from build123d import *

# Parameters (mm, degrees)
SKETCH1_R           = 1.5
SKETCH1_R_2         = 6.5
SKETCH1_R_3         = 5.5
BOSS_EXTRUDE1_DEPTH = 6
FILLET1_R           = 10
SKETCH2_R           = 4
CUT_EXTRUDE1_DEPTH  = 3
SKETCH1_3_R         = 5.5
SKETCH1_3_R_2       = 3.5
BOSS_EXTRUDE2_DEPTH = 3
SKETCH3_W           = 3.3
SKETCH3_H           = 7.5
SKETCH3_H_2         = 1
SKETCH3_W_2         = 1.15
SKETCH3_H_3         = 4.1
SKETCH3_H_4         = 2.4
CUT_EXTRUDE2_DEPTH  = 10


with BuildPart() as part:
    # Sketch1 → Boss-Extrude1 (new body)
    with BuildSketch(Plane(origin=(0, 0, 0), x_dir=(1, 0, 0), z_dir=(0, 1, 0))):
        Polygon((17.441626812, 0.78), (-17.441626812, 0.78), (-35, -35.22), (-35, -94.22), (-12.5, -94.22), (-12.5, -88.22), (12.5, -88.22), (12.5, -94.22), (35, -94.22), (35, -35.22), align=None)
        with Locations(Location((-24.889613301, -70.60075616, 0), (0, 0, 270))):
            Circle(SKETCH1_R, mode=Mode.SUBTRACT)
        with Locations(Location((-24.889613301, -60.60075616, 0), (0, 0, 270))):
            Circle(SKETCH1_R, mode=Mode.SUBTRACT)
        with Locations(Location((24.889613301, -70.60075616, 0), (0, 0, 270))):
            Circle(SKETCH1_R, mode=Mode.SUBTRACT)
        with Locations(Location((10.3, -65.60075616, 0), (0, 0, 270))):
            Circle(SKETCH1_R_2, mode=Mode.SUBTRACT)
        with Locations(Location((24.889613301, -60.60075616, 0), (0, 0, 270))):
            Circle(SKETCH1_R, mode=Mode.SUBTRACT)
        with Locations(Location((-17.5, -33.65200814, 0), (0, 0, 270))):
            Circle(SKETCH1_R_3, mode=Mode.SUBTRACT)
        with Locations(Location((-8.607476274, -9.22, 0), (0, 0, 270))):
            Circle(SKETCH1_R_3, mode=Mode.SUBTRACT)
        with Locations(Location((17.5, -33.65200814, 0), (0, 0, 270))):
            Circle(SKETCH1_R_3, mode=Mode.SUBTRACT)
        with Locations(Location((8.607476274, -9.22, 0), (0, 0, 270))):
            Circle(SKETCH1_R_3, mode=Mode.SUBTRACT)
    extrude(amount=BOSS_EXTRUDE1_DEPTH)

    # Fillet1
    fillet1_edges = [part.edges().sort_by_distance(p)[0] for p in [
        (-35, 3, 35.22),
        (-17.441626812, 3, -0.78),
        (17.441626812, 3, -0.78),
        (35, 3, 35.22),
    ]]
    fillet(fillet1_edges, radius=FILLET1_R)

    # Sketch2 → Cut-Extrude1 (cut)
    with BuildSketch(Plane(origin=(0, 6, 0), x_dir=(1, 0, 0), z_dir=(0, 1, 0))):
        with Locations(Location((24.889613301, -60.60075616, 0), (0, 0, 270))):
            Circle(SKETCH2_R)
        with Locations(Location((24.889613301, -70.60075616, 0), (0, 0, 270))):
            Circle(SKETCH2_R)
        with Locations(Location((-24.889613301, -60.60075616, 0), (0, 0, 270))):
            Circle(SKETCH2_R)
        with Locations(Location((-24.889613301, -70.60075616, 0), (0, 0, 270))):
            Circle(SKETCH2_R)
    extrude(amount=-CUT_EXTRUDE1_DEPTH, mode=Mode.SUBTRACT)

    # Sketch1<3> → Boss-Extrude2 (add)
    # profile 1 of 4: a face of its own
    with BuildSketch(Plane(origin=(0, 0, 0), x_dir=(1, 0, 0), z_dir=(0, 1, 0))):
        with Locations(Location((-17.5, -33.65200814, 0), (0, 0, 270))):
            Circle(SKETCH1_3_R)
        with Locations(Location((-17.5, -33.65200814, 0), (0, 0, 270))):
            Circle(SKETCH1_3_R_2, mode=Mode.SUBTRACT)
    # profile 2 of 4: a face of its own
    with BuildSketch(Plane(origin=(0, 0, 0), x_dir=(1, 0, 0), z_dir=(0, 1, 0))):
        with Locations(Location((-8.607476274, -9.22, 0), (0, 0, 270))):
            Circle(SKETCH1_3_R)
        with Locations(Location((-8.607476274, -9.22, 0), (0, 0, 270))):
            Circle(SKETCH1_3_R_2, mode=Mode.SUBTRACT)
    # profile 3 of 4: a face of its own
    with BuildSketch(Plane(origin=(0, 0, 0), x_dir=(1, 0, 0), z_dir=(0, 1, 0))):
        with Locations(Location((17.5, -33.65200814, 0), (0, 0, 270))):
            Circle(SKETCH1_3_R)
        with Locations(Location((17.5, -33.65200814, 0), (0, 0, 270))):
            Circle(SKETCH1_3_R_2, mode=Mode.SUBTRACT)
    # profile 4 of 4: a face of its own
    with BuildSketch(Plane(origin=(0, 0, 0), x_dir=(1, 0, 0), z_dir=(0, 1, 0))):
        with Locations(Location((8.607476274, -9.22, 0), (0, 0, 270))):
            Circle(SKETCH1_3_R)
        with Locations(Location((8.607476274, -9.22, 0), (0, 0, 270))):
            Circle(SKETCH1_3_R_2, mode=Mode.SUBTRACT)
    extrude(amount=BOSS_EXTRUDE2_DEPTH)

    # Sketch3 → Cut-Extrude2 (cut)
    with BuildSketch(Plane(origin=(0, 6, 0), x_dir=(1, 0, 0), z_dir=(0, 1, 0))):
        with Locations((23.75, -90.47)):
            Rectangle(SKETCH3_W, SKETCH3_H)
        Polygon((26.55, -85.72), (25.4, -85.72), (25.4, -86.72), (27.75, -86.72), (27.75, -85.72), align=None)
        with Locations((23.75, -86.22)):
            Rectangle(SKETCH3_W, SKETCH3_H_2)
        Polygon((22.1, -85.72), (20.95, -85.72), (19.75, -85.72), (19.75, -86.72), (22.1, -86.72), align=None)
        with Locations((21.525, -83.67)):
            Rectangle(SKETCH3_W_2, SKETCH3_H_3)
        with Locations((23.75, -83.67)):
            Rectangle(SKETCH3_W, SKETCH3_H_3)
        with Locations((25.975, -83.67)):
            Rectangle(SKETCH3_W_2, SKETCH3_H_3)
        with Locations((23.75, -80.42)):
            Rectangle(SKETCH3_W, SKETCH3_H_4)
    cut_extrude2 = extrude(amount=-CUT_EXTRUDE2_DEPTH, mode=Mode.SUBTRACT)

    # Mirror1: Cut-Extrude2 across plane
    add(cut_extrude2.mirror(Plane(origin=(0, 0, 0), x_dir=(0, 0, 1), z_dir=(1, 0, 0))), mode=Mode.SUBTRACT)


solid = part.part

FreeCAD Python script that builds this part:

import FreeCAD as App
import Part
import Sketcher
Q = App.Units.Quantity


def edges_at(feature, points):
    """Names of the edges that pass closest to the given points."""
    edges = feature.Shape.Edges
    near = lambda p: min(range(len(edges)), key=lambda i: edges[i].distToShape(Part.Vertex(*p))[0])
    return sorted({f"Edge{near(p) + 1}" for p in points})


def add_polygon(sketch, points):
    """Adds a closed chain of lines whose ends are joined by coincident constraints."""
    first, n = sketch.GeometryCount, len(points)
    for a, b in zip(points, points[1:] + points[:1]):
        sketch.addGeometry(Part.LineSegment(App.Vector(*a, 0), App.Vector(*b, 0)), False)
    for i in range(n):
        sketch.addConstraint(Sketcher.Constraint("Coincident", first + i, 2, first + (i + 1) % n, 1))

doc = App.newDocument("Part")
body = doc.addObject("PartDesign::Body", "Body")

# Sketch on XZ plane
sketch1 = body.newObject("Sketcher::SketchObject", "Sketch")
sketch1.AttachmentSupport = (doc.getObject("XZ_Plane"), [""])
sketch1.MapMode = "FlatFace"
add_polygon(sketch1, [(17.4, -0.8), (-17.4, -0.8), (-35, 35.2), (-35, 94.2), (-12.5, 94.2), (-12.5, 88.2), (12.5, 88.2), (12.5, 94.2), (35, 94.2), (35, 35.2)])  # lines 0-9
sketch1.addGeometry(Part.Circle(App.Vector(-24.9, 70.6, 0), App.Vector(0, 0, 1), 1.5), False)  # 10
sketch1.addGeometry(Part.Circle(App.Vector(-24.9, 60.6, 0), App.Vector(0, 0, 1), 1.5), False)  # 11
sketch1.addGeometry(Part.Circle(App.Vector(10.3, 65.6, 0), App.Vector(0, 0, 1), 6.5), False)  # 12
sketch1.addGeometry(Part.Circle(App.Vector(24.9, 70.6, 0), App.Vector(0, 0, 1), 1.5), False)  # 13
sketch1.addGeometry(Part.Circle(App.Vector(24.9, 60.6, 0), App.Vector(0, 0, 1), 1.5), False)  # 14
sketch1.addGeometry(Part.Circle(App.Vector(-17.5, 33.7, 0), App.Vector(0, 0, 1), 5.5), False)  # 15
sketch1.addGeometry(Part.Circle(App.Vector(-8.6, 9.2, 0), App.Vector(0, 0, 1), 5.5), False)  # 16
sketch1.addGeometry(Part.Circle(App.Vector(17.5, 33.7, 0), App.Vector(0, 0, 1), 5.5), False)  # 17
sketch1.addGeometry(Part.Circle(App.Vector(8.6, 9.2, 0), App.Vector(0, 0, 1), 5.5), False)  # 18
sketch1.addConstraint([
    Sketcher.Constraint("Horizontal", 0),
    Sketcher.Constraint("Vertical", 2),
    Sketcher.Constraint("Horizontal", 3),
    Sketcher.Constraint("Vertical", 4),
    Sketcher.Constraint("Horizontal", 5),
    Sketcher.Constraint("Vertical", 6),
    Sketcher.Constraint("Horizontal", 7),
    Sketcher.Constraint("Vertical", 8),
    Sketcher.Constraint("Equal", 10, 11),
    Sketcher.Constraint("Equal", 11, 13),
    Sketcher.Constraint("Equal", 13, 14),
    Sketcher.Constraint("Equal", 15, 16),
    Sketcher.Constraint("Equal", 16, 17),
    Sketcher.Constraint("Equal", 17, 18),
    Sketcher.Constraint("Symmetric", 10, 3, 13, 3, -2),
    Sketcher.Constraint("Symmetric", 11, 3, 14, 3, -2),
    Sketcher.Constraint("Symmetric", 15, 3, 17, 3, -2),
    Sketcher.Constraint("Symmetric", 16, 3, 18, 3, -2),
    Sketcher.Constraint("Symmetric", 3, 2, 6, 2, -2),
    Sketcher.Constraint("Symmetric", 1, 2, 8, 2, -2),
    Sketcher.Constraint("Vertical", 10, 3, 11, 3),
    Sketcher.Constraint("Equal", 1, 9),
    Sketcher.Constraint("Diameter", 10, 3.0),
    Sketcher.Constraint("Diameter", 12, 13.0),
    Sketcher.Constraint("Diameter", 15, 11.0),
    Sketcher.Constraint("DistanceX", 5, 1, 5, 2, 25.0),
    Sketcher.Constraint("DistanceY", 2, 1, 2, 2, 59.0),
    Sketcher.Constraint("DistanceY", 4, 2, 4, 1, 6.0),
    Sketcher.Constraint("Angle", 1, Q("116 deg")),
    Sketcher.Constraint("DistanceX", 3, 1, 3, 2, 22.5),
    Sketcher.Constraint("DistanceY", 11, 3, 10, 3, 10.0),
    Sketcher.Constraint("DistanceY", 12, 3, 10, 3, 5.0),
    Sketcher.Constraint("DistanceX", 15, 3, 17, 3, 35.0),
    Sketcher.Constraint("DistanceY", 0, 2, 16, 3, 10.0),
    Sketcher.Constraint("DistanceY", 16, 3, 1, 2, 26.0),
    Sketcher.Constraint("DistanceX", -1, 1, 12, 3, 10.3),
    Sketcher.Constraint("DistanceY", -1, 1, 16, 3, 9.22),
    Sketcher.Constraint("DistanceY", -1, 1, 15, 3, 33.652008),
    Sketcher.Constraint("DistanceY", 15, 3, 11, 3, 26.948748),
    Sketcher.Constraint("DistanceX", 16, 3, 14, 3, 33.49709),
    Sketcher.Constraint("DistanceX", 0, 2, 16, 3, 8.834151),
])
pad1 = body.newObject("PartDesign::Pad", "Pad")
pad1.Profile = sketch1
pad1.Length = 6
pad1.Reversed = True
doc.recompute()

fillet = body.newObject("PartDesign::Fillet", "Fillet")
fillet.Base = (pad1, edges_at(pad1, [
    (-35, 3, 35.22),
    (-17.442, 3, -0.78),
    (17.442, 3, -0.78),
    (35, 3, 35.22),
]))
fillet.Radius = 10

# Sketch on XZ plane
sketch2 = body.newObject("Sketcher::SketchObject", "Sketch001")
sketch2.AttachmentSupport = (doc.getObject("XZ_Plane"), [""])
sketch2.MapMode = "FlatFace"
sketch2.AttachmentOffset = App.Placement(App.Vector(0, 0, -6), App.Rotation())
sketch2.addGeometry([
    Part.Circle(App.Vector(24.9, 60.6, 0), App.Vector(0, 0, 1), 4),
    Part.Circle(App.Vector(24.9, 70.6, 0), App.Vector(0, 0, 1), 4),
    Part.Circle(App.Vector(-24.9, 60.6, 0), App.Vector(0, 0, 1), 4),
    Part.Circle(App.Vector(-24.9, 70.6, 0), App.Vector(0, 0, 1), 4),
], False)
sketch2.addConstraint([
    Sketcher.Constraint("Equal", 0, 1),
    Sketcher.Constraint("Equal", 1, 2),
    Sketcher.Constraint("Equal", 2, 3),
    Sketcher.Constraint("Symmetric", 0, 3, 2, 3, -2),
    Sketcher.Constraint("Symmetric", 1, 3, 3, 3, -2),
    Sketcher.Constraint("Vertical", 0, 3, 1, 3),
    Sketcher.Constraint("Diameter", 0, 8.0),
    Sketcher.Constraint("DistanceY", 0, 3, 1, 3, 10.0),
    Sketcher.Constraint("DistanceX", -1, 1, 0, 3, 24.889613),
    Sketcher.Constraint("DistanceY", -1, 1, 0, 3, 60.600756),
])
pocket1 = body.newObject("PartDesign::Pocket", "Pocket")
pocket1.Profile = sketch2
pocket1.Length = 3
pocket1.Reversed = True

# Sketch on XZ plane
sketch3 = body.newObject("Sketcher::SketchObject", "Sketch002")
sketch3.AttachmentSupport = (doc.getObject("XZ_Plane"), [""])
sketch3.MapMode = "FlatFace"
sketch3.addGeometry([
    Part.Circle(App.Vector(-17.5, 33.7, 0), App.Vector(0, 0, 1), 5.5),  # 0
    Part.Circle(App.Vector(-17.5, 33.7, 0), App.Vector(0, 0, 1), 3.5),  # 1
    Part.Circle(App.Vector(-8.6, 9.2, 0), App.Vector(0, 0, 1), 5.5),  # 2
    Part.Circle(App.Vector(-8.6, 9.2, 0), App.Vector(0, 0, 1), 3.5),  # 3
    Part.Circle(App.Vector(17.5, 33.7, 0), App.Vector(0, 0, 1), 5.5),  # 4
    Part.Circle(App.Vector(17.5, 33.7, 0), App.Vector(0, 0, 1), 3.5),  # 5
    Part.Circle(App.Vector(8.6, 9.2, 0), App.Vector(0, 0, 1), 5.5),  # 6
    Part.Circle(App.Vector(8.6, 9.2, 0), App.Vector(0, 0, 1), 3.5),  # 7
], False)
sketch3.addConstraint([
    Sketcher.Constraint("Coincident", 1, 3, 0, 3),
    Sketcher.Constraint("Coincident", 3, 3, 2, 3),
    Sketcher.Constraint("Coincident", 5, 3, 4, 3),
    Sketcher.Constraint("Coincident", 7, 3, 6, 3),
    Sketcher.Constraint("Equal", 0, 2),
    Sketcher.Constraint("Equal", 1, 3),
    Sketcher.Constraint("Equal", 2, 4),
    Sketcher.Constraint("Equal", 3, 5),
    Sketcher.Constraint("Equal", 4, 6),
    Sketcher.Constraint("Equal", 5, 7),
    Sketcher.Constraint("Symmetric", 0, 3, 4, 3, -2),
    Sketcher.Constraint("Symmetric", 2, 3, 6, 3, -2),
    Sketcher.Constraint("Diameter", 0, 11.0),
    Sketcher.Constraint("Diameter", 1, 7.0),
    Sketcher.Constraint("DistanceX", 0, 3, 4, 3, 35.0),
    Sketcher.Constraint("DistanceY", -1, 1, 2, 3, 9.22),
    Sketcher.Constraint("DistanceY", -1, 1, 0, 3, 33.652008),
    Sketcher.Constraint("DistanceX", 2, 3, -1, 1, 8.607476),
])
pad2 = body.newObject("PartDesign::Pad", "Pad001")
pad2.Profile = sketch3
pad2.Length = 3
pad2.Reversed = True

# Sketch on XZ plane
sketch4 = body.newObject("Sketcher::SketchObject", "Sketch003")
sketch4.AttachmentSupport = (doc.getObject("XZ_Plane"), [""])
sketch4.MapMode = "FlatFace"
sketch4.AttachmentOffset = App.Placement(App.Vector(0, 0, -6), App.Rotation())
add_polygon(sketch4, [(22.1, 94.2), (25.4, 94.2), (25.4, 86.7), (27.8, 86.7), (27.8, 85.7), (26.6, 85.7), (26.6, 81.6), (25.4, 81.6), (25.4, 79.2), (22.1, 79.2), (22.1, 81.6), (20.9, 81.6), (20.9, 85.7), (19.8, 85.7), (19.8, 86.7), (22.1, 86.7)])  # lines 0-15
sketch4.addConstraint([
    Sketcher.Constraint("Horizontal", 0),
    Sketcher.Constraint("Vertical", 1),
    Sketcher.Constraint("Horizontal", 2),
    Sketcher.Constraint("Vertical", 3),
    Sketcher.Constraint("Horizontal", 4),
    Sketcher.Constraint("Vertical", 5),
    Sketcher.Constraint("Horizontal", 6),
    Sketcher.Constraint("Vertical", 7),
    Sketcher.Constraint("Horizontal", 8),
    Sketcher.Constraint("Vertical", 9),
    Sketcher.Constraint("Horizontal", 10),
    Sketcher.Constraint("Vertical", 11),
    Sketcher.Constraint("Horizontal", 12),
    Sketcher.Constraint("Vertical", 13),
    Sketcher.Constraint("Horizontal", 14),
    Sketcher.Constraint("Vertical", 15),
    Sketcher.Constraint("Horizontal", 6, 2, 9, 2),
    Sketcher.Constraint("Horizontal", 4, 2, 11, 2),
    Sketcher.Constraint("Horizontal", 2, 2, 13, 2),
    Sketcher.Constraint("Vertical", 1, 2, 6, 2),
    Sketcher.Constraint("Vertical", 9, 2, 14, 2),
    Sketcher.Constraint("Equal", 6, 10),
    Sketcher.Constraint("Equal", 4, 12),
    Sketcher.Constraint("DistanceY", 3, 2, 3, 1, 1.0),
    Sketcher.Constraint("DistanceX", 0, 1, 0, 2, 3.3),
    Sketcher.Constraint("DistanceX", 4, 2, 4, 1, 1.2),
    Sketcher.Constraint("DistanceY", 1, 2, 1, 1, 7.5),
    Sketcher.Constraint("DistanceY", 5, 2, 5, 1, 4.1),
    Sketcher.Constraint("DistanceY", 7, 2, 7, 1, 2.4),
    Sketcher.Constraint("DistanceX", 2, 1, 2, 2, 2.35),
    Sketcher.Constraint("DistanceX", -1, 1, 0, 2, 25.4),
    Sketcher.Constraint("DistanceY", -1, 1, 0, 2, 94.22),
])
pocket2 = body.newObject("PartDesign::Pocket", "Pocket001")
pocket2.Profile = sketch4
pocket2.Length = 10
pocket2.Reversed = True
doc.recompute()

mirrored = body.newObject("PartDesign::Mirrored", "Mirrored")
mirrored.Originals = [pocket2]
mirrored.MirrorPlane = (doc.getObject("YZ_Plane"), [""])
body.Tip = mirrored

doc.recompute()
